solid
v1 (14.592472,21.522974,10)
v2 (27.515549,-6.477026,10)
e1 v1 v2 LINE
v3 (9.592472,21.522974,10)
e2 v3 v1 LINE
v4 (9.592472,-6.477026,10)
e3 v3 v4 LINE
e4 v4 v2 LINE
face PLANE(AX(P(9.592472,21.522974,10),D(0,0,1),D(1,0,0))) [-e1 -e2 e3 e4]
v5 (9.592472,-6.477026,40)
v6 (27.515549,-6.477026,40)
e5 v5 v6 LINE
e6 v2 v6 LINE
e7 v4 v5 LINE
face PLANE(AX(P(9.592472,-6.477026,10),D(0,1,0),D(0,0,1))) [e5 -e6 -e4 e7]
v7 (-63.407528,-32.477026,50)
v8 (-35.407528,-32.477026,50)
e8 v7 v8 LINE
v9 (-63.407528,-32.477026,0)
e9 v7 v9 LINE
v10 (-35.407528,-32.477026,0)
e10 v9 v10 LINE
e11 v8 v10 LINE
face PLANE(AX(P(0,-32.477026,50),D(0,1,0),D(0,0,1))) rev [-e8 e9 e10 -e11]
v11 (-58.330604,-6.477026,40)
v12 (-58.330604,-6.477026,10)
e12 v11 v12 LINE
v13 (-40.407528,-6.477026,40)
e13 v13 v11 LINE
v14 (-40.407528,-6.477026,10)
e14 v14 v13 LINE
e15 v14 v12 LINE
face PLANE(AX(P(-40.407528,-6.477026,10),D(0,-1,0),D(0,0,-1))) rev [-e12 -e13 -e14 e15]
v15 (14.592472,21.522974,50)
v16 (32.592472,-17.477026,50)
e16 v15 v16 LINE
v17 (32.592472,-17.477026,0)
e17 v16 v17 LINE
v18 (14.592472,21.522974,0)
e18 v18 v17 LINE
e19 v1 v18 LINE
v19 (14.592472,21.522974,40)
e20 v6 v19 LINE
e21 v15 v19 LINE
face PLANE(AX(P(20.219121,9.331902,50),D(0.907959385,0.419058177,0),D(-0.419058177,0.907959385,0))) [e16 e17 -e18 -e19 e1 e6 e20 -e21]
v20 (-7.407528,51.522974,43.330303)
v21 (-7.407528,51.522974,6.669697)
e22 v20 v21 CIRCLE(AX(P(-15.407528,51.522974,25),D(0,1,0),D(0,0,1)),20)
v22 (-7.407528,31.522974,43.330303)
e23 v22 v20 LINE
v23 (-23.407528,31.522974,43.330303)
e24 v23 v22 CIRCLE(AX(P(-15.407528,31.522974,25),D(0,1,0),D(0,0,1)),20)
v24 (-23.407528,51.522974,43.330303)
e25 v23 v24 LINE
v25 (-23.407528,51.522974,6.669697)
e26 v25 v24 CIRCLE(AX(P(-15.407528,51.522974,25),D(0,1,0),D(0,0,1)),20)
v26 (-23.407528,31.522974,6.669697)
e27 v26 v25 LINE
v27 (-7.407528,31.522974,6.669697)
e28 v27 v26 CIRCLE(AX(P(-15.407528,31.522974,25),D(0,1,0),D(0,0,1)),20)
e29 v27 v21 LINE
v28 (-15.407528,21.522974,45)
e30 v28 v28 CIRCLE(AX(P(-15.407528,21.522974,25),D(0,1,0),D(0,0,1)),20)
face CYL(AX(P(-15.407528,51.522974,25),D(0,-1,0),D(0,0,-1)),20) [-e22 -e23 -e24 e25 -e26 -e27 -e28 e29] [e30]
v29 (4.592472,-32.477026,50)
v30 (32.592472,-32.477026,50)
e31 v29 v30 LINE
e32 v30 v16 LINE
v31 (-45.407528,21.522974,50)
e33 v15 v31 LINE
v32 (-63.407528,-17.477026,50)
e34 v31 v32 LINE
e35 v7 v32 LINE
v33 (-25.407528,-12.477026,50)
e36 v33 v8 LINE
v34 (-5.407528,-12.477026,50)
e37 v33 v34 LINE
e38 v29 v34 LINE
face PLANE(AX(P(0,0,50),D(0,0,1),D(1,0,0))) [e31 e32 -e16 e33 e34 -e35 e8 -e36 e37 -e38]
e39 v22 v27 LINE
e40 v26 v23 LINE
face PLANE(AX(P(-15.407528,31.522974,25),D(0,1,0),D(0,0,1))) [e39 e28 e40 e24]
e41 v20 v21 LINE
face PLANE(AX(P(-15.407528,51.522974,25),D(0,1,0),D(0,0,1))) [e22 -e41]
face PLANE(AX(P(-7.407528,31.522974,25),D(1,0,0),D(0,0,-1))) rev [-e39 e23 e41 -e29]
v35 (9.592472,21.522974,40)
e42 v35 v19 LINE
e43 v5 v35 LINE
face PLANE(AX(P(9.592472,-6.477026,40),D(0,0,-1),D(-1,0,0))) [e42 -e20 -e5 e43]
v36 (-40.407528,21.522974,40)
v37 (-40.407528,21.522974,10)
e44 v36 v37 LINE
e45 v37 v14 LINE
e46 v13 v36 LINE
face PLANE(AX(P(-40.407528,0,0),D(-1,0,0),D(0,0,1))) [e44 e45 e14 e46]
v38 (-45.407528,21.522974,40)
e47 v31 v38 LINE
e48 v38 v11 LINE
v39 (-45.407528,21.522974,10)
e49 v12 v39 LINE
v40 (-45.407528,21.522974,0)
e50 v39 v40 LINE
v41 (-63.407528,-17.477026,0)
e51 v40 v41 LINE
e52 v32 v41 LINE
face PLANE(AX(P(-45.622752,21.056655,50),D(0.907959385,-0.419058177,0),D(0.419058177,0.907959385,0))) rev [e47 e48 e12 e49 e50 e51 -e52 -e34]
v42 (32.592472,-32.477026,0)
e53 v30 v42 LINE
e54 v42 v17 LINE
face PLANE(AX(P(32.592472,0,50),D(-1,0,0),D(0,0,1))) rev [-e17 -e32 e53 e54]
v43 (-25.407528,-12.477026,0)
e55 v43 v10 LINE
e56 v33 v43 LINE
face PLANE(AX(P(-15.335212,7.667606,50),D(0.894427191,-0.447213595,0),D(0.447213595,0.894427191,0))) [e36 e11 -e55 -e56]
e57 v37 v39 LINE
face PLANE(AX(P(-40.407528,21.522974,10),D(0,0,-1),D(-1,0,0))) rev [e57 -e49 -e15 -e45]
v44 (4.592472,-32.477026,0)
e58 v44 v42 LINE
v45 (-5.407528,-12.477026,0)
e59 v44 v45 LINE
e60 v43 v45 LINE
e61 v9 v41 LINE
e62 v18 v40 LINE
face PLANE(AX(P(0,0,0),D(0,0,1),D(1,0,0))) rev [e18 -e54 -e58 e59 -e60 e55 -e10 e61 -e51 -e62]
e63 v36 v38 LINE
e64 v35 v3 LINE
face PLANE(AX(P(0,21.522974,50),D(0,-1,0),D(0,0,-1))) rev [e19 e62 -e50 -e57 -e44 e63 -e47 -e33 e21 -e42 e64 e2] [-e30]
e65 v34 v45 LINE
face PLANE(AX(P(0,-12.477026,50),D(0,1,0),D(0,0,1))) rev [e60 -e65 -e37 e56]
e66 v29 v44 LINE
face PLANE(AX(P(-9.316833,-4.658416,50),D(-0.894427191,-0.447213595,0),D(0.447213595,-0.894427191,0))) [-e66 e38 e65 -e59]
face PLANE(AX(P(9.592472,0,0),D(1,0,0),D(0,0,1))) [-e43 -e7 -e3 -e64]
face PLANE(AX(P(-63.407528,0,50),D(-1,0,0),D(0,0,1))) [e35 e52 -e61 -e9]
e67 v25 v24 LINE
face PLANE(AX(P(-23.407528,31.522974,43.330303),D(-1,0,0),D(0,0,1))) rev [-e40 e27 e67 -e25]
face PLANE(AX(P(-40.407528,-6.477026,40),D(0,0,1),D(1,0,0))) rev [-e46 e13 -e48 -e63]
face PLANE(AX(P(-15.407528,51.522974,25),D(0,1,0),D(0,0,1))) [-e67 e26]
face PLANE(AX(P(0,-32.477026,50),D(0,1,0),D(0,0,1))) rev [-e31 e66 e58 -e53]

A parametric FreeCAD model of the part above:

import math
import FreeCAD as App
import Part
import Sketcher

V = App.Vector
Q = App.Units.Quantity


def add_polygon(sketch, points):
    """Adds a closed chain of lines whose ends are joined by coincident constraints."""
    first, n = sketch.GeometryCount, len(points)
    for a, b in zip(points, points[1:] + points[:1]):
        sketch.addGeometry(Part.LineSegment(App.Vector(*a, 0), App.Vector(*b, 0)), False)
    for i in range(n):
        sketch.addConstraint(Sketcher.Constraint("Coincident", first + i, 2, first + (i + 1) % n, 1))

doc = App.newDocument("Part")
body = doc.addObject("PartDesign::Body", "Body")

sketch1 = body.newObject("Sketcher::SketchObject", "Sketch")
sketch1.AttachmentSupport = (doc.getObject("XY_Plane"), [""])
sketch1.MapMode = "FlatFace"
add_polygon(sketch1, [(15, 22), (-45, 22), (-63, -17), (-63, -32), (-35, -32), (-25, -12), (-5, -12), (5, -32), (33, -32), (33, -17)])
sketch1.addConstraint(Sketcher.Constraint("Horizontal", 0))
sketch1.addConstraint(Sketcher.Constraint("Vertical", 2))
sketch1.addConstraint(Sketcher.Constraint("Horizontal", 3))
sketch1.addConstraint(Sketcher.Constraint("Horizontal", 5))
sketch1.addConstraint(Sketcher.Constraint("Horizontal", 7))
sketch1.addConstraint(Sketcher.Constraint("Vertical", 8))
sketch1.addConstraint(Sketcher.Constraint("Horizontal", 3, 2, 6, 2))
sketch1.addConstraint(Sketcher.Constraint("Horizontal", 1, 2, 8, 2))
sketch1.addConstraint(Sketcher.Constraint("Equal", 3, 7))
sketch1.addConstraint(Sketcher.Constraint("Equal", 4, 6))
sketch1.addConstraint(Sketcher.Constraint("Equal", 1, 9))
sketch1.addConstraint(Sketcher.Constraint("DistanceX", 0, 2, 0, 1, Q("60 mm")))
sketch1.addConstraint(Sketcher.Constraint("DistanceX", 3, 1, 3, 2, Q("28 mm")))
sketch1.addConstraint(Sketcher.Constraint("DistanceX", 5, 1, 5, 2, Q("20 mm")))
sketch1.addConstraint(Sketcher.Constraint("DistanceY", 2, 2, 2, 1, Q("15 mm")))
sketch1.addConstraint(Sketcher.Constraint("DistanceX", 1, 2, 0, 2, Q("18 mm")))
sketch1.addConstraint(Sketcher.Constraint("DistanceY", 1, 2, 0, 2, Q("39 mm")))
sketch1.addConstraint(Sketcher.Constraint("DistanceY", 3, 2, 4, 2, Q("20 mm")))
sketch1.addConstraint(Sketcher.Constraint("DistanceX", 0, 2, -1, 1, Q("45.407528 mm")))
sketch1.addConstraint(Sketcher.Constraint("DistanceY", -1, 1, 0, 2, Q("21.522974 mm")))
pad1 = body.newObject("PartDesign::Pad", "Pad")
pad1.Profile = sketch1
pad1.Length = 50

sketch2 = body.newObject("Sketcher::SketchObject", "Sketch001")
sketch2.AttachmentSupport = (doc.getObject("XZ_Plane"), [""])
sketch2.MapMode = "FlatFace"
sketch2.AttachmentOffset = App.Placement(V(0, 0, -21.522974), App.Rotation())
sketch2.addGeometry(Part.Circle(V(-15, 25, 0), V(0, 0, 1), 20), False)
sketch2.addConstraint(Sketcher.Constraint("Diameter", 0, Q("40 mm")))
sketch2.addConstraint(Sketcher.Constraint("DistanceY", -1, 1, 0, 3, Q("25 mm")))
sketch2.addConstraint(Sketcher.Constraint("DistanceX", 0, 3, -1, 1, Q("15.407528 mm")))
pad2 = body.newObject("PartDesign::Pad", "Pad001")
pad2.Profile = sketch2
pad2.Length = 30
pad2.Reversed = True

sketch3 = body.newObject("Sketcher::SketchObject", "Sketch002")
sketch3.AttachmentSupport = (doc.getObject("XZ_Plane"), [""])
sketch3.MapMode = "FlatFace"
sketch3.AttachmentOffset = App.Placement(V(0, 0, -31.522974), App.Rotation())
sketch3.addGeometry(Part.ArcOfCircle(Part.Circle(V(-15, 25, 0), V(0, 0, 1), 20), math.radians(-114), math.radians(-66)), False)
sketch3.addGeometry(Part.LineSegment(V(-23, 7, 0), V(-23, 43, 0)), False)
sketch3.addGeometry(Part.ArcOfCircle(Part.Circle(V(-15, 25, 0), V(0, 0, 1), 20), math.radians(66), math.radians(114)), False)
sketch3.addGeometry(Part.LineSegment(V(-7, 43, 0), V(-7, 7, 0)), False)
sketch3.addConstraint(Sketcher.Constraint("Coincident", 0, 1, 1, 1))
sketch3.addConstraint(Sketcher.Constraint("Coincident", 1, 2, 2, 2))
sketch3.addConstraint(Sketcher.Constraint("Coincident", 2, 1, 3, 1))
sketch3.addConstraint(Sketcher.Constraint("Coincident", 3, 2, 0, 2))
sketch3.addConstraint(Sketcher.Constraint("Vertical", 1))
sketch3.addConstraint(Sketcher.Constraint("Vertical", 3))
sketch3.addConstraint(Sketcher.Constraint("Coincident", 2, 3, 0, 3))
sketch3.addConstraint(Sketcher.Constraint("Equal", 0, 2))
sketch3.addConstraint(Sketcher.Constraint("Horizontal", 1, 2, 2, 1))
sketch3.addConstraint(Sketcher.Constraint("Radius", 0, Q("20 mm")))
sketch3.addConstraint(Sketcher.Constraint("DistanceY", -1, 1, 0, 3, Q("25 mm")))
sketch3.addConstraint(Sketcher.Constraint("DistanceX", 0, 1, 2, 3, Q("8 mm")))
sketch3.addConstraint(Sketcher.Constraint("DistanceX", 0, 3, -1, 1, Q("15.407528 mm")))
pocket1 = body.newObject("PartDesign::Pocket", "Pocket")
pocket1.Profile = sketch3
pocket1.Length = 20

sketch4 = body.newObject("Sketcher::SketchObject", "Sketch003")
sketch4.AttachmentSupport = (doc.getObject("YZ_Plane"), [""])
sketch4.MapMode = "FlatFace"
sketch4.AttachmentOffset = App.Placement(V(0, 0, -63.407528), App.Rotation())
add_polygon(sketch4, [(22, 10), (-6, 10), (-6, 40), (22, 40)])
sketch4.addConstraint(Sketcher.Constraint("Horizontal", 0))
sketch4.addConstraint(Sketcher.Constraint("Vertical", 1))
sketch4.addConstraint(Sketcher.Constraint("Horizontal", 2))
sketch4.addConstraint(Sketcher.Constraint("Vertical", 3))
sketch4.addConstraint(Sketcher.Constraint("DistanceX", 0, 2, 0, 1, Q("28 mm")))
sketch4.addConstraint(Sketcher.Constraint("DistanceY", 1, 1, 1, 2, Q("30 mm")))
sketch4.addConstraint(Sketcher.Constraint("DistanceY", -1, 1, 0, 2, Q("10 mm")))
sketch4.addConstraint(Sketcher.Constraint("DistanceX", 0, 2, -1, 1, Q("6.477026 mm")))
pocket2 = body.newObject("PartDesign::Pocket", "Pocket001")
pocket2.Profile = sketch4
pocket2.Length = 23
pocket2.Reversed = True
doc.recompute()

datumplane = body.newObject("PartDesign::Plane", "DatumPlane")
datumplane.AttachmentSupport = (doc.getObject("YZ_Plane"), [""])
datumplane.MapMode = "FlatFace"
datumplane.AttachmentOffset = App.Placement(V(0, 0, -15.407528), App.Rotation())
mirrored = body.newObject("PartDesign::Mirrored", "Mirrored")
mirrored.Originals = [pocket2]
mirrored.MirrorPlane = (datumplane, [""])
body.Tip = mirrored

doc.recompute()
